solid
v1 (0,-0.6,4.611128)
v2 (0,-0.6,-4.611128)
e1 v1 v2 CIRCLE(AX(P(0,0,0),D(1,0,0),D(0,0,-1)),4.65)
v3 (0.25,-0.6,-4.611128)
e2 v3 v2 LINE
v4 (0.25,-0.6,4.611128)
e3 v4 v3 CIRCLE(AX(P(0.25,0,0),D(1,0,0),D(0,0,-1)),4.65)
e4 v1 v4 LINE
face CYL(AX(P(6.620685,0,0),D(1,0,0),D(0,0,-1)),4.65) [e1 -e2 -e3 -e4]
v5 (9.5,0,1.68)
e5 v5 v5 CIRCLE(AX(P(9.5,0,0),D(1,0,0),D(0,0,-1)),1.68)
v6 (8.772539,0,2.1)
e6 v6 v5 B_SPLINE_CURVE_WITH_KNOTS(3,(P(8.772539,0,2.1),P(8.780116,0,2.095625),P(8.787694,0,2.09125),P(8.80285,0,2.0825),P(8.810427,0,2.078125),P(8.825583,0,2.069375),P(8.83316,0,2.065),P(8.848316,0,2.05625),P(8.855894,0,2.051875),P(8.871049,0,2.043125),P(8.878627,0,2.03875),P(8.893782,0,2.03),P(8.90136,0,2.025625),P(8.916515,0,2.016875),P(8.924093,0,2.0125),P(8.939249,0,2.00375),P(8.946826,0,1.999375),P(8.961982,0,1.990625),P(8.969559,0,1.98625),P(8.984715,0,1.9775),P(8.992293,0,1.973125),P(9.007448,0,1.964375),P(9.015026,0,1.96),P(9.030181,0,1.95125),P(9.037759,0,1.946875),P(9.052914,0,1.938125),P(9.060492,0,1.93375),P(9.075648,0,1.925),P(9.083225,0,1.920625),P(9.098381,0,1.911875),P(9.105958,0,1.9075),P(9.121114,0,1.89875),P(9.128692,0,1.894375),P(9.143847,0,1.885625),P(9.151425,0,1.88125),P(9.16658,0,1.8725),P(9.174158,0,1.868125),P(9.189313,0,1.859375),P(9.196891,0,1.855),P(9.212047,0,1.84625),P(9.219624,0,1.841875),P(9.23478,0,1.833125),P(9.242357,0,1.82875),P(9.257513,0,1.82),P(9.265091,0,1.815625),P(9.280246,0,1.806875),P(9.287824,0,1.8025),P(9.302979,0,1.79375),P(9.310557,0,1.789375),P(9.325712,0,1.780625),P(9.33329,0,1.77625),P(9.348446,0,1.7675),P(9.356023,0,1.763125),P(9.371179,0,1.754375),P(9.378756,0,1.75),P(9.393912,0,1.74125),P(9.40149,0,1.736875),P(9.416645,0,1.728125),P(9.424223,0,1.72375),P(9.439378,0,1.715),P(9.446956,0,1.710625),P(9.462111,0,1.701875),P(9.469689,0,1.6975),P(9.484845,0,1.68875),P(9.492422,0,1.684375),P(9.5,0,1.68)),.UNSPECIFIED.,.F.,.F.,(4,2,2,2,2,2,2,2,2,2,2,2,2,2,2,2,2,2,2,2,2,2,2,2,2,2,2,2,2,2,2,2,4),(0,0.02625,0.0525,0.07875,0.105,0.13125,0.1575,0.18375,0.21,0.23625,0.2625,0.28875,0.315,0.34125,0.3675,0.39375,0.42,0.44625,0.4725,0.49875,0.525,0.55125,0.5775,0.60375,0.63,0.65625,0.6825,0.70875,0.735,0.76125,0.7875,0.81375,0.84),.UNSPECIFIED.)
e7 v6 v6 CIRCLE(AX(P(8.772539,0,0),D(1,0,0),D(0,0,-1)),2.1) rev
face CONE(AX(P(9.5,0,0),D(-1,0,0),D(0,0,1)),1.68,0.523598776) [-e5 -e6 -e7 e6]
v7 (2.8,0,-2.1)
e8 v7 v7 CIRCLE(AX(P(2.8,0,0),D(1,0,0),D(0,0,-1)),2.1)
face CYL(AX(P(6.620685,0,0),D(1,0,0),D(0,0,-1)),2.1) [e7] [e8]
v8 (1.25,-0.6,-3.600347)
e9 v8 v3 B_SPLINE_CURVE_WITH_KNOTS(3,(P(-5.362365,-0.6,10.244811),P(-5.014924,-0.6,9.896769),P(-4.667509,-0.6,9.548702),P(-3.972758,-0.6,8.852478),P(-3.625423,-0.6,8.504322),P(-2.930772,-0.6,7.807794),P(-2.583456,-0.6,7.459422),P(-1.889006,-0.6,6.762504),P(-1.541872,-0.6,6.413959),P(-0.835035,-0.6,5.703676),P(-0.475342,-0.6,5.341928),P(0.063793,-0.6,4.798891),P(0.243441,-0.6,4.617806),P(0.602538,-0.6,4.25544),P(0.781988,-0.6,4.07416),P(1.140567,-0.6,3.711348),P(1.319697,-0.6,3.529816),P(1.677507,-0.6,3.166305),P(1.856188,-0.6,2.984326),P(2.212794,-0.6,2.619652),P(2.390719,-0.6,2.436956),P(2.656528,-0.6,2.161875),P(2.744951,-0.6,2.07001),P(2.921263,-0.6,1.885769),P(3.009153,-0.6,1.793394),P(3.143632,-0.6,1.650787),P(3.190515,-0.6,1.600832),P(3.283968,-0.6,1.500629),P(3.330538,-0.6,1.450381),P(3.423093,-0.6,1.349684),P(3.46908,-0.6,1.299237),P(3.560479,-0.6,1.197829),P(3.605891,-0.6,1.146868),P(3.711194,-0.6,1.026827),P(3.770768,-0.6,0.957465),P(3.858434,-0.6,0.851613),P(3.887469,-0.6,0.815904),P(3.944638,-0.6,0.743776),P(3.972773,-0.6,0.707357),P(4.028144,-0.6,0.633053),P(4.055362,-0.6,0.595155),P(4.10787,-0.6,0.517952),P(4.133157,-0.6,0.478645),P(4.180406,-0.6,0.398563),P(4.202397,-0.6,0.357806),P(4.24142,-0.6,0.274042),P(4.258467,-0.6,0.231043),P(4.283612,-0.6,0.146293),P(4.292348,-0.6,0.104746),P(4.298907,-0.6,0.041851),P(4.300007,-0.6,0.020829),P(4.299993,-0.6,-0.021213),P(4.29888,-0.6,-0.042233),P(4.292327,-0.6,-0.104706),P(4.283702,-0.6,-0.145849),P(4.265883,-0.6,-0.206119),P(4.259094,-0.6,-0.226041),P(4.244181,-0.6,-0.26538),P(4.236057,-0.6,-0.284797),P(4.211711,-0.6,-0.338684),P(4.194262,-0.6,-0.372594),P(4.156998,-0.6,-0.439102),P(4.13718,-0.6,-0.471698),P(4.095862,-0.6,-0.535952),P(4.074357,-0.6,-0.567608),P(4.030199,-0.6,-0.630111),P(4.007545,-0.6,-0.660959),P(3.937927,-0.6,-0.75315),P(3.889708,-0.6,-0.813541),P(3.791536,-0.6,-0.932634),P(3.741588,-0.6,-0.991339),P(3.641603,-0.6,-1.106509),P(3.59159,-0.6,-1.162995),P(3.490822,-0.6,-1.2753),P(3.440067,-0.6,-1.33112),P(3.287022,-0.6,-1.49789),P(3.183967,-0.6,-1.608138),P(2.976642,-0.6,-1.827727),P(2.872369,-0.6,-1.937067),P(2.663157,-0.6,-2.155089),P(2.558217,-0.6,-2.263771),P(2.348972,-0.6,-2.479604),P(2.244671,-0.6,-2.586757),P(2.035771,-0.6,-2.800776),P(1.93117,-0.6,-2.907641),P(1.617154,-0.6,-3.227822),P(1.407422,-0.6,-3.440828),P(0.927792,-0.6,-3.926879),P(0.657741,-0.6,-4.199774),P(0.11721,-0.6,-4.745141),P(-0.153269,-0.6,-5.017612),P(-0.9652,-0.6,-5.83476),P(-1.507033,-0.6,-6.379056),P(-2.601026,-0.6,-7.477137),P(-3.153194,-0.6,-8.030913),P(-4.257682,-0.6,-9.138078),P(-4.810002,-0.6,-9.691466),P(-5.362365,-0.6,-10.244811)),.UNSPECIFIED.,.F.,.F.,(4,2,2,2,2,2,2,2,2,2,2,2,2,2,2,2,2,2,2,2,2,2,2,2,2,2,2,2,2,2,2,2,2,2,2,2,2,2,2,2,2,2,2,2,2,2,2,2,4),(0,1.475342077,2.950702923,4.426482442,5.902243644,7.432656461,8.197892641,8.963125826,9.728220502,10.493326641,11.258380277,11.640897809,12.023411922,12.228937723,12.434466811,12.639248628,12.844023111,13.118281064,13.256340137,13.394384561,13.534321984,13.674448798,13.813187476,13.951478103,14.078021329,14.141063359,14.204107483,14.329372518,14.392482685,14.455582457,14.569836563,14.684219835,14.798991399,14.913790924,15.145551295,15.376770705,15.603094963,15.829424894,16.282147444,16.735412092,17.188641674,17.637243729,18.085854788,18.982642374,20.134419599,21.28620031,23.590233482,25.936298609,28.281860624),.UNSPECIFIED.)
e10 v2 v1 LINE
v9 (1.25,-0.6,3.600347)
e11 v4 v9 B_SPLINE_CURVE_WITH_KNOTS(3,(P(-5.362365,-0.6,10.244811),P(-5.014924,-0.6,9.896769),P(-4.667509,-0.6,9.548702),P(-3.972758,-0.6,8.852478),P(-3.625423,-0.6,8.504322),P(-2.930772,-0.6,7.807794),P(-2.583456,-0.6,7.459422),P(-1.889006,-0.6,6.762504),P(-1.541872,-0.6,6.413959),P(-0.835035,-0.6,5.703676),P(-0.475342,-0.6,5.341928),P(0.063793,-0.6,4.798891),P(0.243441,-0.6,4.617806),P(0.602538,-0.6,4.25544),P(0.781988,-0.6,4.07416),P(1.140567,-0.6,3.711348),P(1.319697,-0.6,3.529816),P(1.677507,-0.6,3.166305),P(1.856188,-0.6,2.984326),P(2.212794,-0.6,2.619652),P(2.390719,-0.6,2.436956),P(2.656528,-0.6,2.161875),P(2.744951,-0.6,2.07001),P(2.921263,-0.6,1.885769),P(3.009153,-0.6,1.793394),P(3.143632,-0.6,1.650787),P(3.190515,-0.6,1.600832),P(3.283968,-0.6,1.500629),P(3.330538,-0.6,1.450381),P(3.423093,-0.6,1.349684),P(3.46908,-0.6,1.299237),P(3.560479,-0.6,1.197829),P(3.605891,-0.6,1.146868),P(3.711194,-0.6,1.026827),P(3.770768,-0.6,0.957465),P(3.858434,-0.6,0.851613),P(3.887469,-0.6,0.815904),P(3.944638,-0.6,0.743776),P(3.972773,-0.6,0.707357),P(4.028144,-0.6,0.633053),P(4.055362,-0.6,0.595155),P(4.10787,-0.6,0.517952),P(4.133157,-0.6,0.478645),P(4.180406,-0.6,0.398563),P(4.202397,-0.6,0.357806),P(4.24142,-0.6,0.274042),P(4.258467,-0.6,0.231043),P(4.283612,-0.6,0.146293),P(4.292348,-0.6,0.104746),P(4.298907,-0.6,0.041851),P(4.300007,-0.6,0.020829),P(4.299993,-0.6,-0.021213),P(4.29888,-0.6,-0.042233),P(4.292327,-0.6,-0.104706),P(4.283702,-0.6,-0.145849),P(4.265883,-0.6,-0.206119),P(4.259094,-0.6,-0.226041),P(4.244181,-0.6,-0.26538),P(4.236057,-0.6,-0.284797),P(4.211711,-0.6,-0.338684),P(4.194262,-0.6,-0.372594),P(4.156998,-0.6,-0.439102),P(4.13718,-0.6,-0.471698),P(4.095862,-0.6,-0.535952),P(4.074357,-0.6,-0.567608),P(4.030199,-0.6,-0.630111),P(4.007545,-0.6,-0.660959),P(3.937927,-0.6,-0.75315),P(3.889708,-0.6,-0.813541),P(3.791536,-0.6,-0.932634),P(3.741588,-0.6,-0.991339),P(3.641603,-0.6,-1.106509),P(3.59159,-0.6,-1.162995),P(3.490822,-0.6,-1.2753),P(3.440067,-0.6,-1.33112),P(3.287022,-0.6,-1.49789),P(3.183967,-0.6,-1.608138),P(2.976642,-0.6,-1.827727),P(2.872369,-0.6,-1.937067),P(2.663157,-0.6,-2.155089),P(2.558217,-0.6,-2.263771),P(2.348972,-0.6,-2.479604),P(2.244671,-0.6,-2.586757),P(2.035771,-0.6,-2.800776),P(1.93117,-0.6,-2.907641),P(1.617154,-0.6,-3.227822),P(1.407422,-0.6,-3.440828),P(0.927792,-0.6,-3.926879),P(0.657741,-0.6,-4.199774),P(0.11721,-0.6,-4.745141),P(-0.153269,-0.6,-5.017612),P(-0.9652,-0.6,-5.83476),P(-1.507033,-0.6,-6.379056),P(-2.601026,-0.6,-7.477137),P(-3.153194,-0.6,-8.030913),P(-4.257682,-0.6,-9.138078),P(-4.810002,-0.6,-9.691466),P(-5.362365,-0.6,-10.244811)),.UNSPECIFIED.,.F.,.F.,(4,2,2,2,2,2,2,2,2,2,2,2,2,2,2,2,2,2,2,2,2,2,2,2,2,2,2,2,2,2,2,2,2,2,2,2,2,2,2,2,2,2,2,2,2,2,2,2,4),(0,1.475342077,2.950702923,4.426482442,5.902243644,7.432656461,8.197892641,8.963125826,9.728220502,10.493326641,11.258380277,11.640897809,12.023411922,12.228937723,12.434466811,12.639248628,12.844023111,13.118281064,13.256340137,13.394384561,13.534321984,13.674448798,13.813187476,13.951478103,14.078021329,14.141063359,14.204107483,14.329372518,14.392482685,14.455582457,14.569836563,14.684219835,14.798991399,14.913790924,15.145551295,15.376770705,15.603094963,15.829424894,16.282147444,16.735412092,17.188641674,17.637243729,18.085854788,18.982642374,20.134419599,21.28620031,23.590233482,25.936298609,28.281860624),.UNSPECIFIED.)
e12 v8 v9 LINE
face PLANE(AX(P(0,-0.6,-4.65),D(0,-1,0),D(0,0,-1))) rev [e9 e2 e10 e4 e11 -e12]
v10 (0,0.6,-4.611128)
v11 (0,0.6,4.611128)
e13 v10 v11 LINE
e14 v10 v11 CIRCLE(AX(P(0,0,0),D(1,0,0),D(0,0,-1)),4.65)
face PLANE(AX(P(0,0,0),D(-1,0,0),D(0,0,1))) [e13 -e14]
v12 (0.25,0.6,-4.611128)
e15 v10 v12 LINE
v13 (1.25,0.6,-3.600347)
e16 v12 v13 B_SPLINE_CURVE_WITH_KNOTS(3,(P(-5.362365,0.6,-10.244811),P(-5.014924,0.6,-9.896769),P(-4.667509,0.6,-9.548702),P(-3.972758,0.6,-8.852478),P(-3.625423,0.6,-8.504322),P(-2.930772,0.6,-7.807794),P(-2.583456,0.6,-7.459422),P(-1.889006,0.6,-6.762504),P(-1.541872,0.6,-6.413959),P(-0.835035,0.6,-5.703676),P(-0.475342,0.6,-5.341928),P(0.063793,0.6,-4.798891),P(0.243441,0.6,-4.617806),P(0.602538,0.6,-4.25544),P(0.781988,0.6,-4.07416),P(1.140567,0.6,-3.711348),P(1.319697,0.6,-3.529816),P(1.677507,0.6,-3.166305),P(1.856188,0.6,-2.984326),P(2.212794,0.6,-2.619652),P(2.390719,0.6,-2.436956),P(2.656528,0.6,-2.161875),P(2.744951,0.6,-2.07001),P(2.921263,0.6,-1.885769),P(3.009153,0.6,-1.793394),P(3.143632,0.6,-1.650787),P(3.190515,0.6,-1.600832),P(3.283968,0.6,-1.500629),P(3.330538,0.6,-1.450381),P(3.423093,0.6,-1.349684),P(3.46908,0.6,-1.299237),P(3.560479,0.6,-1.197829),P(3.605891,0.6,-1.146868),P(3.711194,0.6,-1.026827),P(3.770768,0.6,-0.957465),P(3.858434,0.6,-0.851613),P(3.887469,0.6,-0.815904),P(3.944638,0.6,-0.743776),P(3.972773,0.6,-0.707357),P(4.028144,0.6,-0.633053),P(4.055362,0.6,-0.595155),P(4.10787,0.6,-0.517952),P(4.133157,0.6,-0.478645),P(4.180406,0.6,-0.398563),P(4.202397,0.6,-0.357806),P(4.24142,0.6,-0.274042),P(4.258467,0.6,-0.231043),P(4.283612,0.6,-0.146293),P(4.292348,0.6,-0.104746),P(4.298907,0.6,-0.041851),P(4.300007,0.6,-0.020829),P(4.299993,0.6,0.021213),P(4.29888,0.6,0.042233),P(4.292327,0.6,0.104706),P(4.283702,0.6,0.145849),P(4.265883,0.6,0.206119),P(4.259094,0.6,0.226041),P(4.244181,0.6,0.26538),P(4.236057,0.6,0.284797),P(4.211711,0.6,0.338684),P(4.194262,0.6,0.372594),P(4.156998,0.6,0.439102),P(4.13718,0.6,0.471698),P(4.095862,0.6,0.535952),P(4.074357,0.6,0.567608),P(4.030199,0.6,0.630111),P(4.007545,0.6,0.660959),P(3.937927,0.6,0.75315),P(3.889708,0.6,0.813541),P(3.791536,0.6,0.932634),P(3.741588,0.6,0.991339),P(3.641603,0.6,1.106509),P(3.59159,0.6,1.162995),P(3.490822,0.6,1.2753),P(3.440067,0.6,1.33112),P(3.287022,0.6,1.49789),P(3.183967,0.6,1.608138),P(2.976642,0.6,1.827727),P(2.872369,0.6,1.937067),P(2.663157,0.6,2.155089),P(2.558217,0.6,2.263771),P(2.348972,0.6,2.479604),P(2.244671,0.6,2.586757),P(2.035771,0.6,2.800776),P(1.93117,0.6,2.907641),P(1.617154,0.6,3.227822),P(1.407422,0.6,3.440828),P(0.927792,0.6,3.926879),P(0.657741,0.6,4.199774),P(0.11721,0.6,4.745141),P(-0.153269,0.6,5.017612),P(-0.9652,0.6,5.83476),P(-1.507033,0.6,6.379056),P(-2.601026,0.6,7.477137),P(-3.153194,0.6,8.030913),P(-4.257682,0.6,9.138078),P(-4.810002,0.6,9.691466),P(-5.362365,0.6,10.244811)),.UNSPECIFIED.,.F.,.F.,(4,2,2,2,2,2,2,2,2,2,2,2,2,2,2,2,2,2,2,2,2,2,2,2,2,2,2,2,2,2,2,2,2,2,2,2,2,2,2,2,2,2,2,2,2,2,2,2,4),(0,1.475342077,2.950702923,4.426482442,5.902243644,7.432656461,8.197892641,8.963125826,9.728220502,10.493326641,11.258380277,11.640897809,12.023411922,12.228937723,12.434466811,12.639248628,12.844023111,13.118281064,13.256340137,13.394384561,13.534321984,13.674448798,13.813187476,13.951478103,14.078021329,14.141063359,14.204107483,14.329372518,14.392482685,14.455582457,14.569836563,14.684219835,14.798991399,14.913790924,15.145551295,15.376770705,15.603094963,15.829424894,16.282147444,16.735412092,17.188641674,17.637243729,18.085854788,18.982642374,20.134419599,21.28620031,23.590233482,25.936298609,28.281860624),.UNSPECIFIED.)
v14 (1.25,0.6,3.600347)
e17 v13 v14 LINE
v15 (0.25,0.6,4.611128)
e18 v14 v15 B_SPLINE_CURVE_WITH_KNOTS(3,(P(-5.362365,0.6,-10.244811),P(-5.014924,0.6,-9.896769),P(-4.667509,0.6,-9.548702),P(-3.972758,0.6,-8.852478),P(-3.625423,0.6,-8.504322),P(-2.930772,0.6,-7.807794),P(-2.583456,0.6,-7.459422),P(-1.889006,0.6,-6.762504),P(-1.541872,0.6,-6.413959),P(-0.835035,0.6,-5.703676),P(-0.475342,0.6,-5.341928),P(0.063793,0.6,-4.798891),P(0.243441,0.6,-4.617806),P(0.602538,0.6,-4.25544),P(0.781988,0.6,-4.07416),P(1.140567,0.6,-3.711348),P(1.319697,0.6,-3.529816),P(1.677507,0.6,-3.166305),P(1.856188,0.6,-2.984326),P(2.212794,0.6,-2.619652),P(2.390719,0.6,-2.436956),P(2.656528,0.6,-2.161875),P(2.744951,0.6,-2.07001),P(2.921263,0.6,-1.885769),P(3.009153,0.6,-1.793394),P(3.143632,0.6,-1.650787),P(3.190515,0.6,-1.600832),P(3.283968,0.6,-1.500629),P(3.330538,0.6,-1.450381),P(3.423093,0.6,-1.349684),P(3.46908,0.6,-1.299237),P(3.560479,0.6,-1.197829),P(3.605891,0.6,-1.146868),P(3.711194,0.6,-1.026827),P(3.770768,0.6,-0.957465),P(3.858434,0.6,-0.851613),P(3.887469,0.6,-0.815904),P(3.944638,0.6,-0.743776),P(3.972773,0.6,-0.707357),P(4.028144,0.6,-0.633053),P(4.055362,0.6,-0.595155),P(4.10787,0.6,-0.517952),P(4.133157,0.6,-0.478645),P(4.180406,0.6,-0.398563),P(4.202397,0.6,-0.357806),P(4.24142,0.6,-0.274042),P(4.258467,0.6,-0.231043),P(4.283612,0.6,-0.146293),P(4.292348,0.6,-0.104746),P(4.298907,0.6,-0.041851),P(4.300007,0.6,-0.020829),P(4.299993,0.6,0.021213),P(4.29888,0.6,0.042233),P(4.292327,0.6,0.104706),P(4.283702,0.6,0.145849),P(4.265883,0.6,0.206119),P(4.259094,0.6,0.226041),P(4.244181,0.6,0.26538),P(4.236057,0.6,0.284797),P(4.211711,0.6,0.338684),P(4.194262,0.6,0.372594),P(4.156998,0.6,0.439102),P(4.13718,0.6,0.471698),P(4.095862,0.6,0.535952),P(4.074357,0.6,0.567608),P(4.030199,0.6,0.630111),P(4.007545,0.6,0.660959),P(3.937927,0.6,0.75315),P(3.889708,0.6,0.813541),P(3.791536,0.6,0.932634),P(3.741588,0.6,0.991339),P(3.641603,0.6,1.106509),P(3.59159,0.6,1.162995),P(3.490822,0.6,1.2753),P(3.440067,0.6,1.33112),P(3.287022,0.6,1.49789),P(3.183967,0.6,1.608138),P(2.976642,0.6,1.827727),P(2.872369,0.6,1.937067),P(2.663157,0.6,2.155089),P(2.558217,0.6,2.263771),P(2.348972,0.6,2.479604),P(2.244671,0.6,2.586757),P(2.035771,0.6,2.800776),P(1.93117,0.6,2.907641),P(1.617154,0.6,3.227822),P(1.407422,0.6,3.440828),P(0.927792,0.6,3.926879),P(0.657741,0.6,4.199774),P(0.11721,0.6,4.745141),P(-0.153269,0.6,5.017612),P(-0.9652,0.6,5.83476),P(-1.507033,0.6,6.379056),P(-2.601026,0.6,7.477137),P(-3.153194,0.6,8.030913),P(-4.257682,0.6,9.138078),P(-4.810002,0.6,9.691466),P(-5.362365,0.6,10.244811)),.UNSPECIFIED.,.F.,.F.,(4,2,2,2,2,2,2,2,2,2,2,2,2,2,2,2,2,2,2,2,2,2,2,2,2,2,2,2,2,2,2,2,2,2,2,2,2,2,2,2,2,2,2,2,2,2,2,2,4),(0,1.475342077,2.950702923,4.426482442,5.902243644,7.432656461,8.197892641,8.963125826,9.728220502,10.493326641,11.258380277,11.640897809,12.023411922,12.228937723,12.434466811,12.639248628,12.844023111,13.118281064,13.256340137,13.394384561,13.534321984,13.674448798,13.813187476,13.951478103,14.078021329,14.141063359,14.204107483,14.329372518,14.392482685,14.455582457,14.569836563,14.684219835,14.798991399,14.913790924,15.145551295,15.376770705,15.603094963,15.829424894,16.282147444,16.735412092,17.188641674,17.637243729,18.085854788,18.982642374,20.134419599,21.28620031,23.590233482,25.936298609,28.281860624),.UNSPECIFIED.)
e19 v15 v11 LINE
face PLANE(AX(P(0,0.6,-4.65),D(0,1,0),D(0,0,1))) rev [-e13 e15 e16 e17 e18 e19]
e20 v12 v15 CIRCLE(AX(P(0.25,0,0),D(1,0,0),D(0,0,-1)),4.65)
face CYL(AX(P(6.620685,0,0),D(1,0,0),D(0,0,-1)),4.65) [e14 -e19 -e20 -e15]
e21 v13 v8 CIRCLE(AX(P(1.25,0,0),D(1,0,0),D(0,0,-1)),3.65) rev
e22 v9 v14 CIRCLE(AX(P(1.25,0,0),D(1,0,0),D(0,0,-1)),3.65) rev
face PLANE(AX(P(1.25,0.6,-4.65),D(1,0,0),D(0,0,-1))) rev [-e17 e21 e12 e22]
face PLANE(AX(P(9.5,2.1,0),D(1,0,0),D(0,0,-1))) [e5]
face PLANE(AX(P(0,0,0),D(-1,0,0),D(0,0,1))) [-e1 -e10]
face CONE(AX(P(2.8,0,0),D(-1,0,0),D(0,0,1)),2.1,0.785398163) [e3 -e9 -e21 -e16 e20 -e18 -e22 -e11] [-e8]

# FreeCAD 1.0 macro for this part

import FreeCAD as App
import Part
import Sketcher

V = App.Vector
Q = App.Units.Quantity


def edges_at(feature, points):
    """Names of the edges that pass closest to the given points."""
    edges = feature.Shape.Edges
    near = lambda p: min(range(len(edges)), key=lambda i: edges[i].distToShape(Part.Vertex(*p))[0])
    return sorted({f"Edge{near(p) + 1}" for p in points})

doc = App.newDocument("Part")
params = doc.addObject("Spreadsheet::Sheet", "Params")
for row, (alias, value) in enumerate([
    ("sketch1_width", "9.5 mm"),
    ("sketch1_width2", "6.7 mm"),
    ("sketch1_height", "2.1 mm"),
    ("sketch1_width3", "0.25 mm"),
    ("revolution_angle", "360 deg"),
    ("sketch2_height", "1.2 mm"),
    ("sketch2_width", "1.25 mm"),
    ("chamfer_size", "0.42 mm"),
    ("chamfer_size2", "0.727461 mm"),
], start=1):
    params.set(f"A{row}", alias)
    params.set(f"B{row}", "=" + value)
    params.setAlias(f"B{row}", alias)

body = doc.addObject("PartDesign::Body", "Body")

# Sketch on XY plane
sketch1 = doc.addObject("Sketcher::SketchObject", "Sketch")
body.addObject(sketch1)
sketch1.AttachmentSupport = (doc.XY_Plane, [""])
sketch1.MapMode = "FlatFace"
sketch1.addGeometry(Part.LineSegment(V(0.25, 4.65, 0), V(0, 4.65, 0)), False)
sketch1.addGeometry(Part.LineSegment(V(0, 4.65, 0), V(0, 0, 0)), False)
sketch1.addGeometry(Part.LineSegment(V(0, 0, 0), V(9.5, 0, 0)), False)
sketch1.addGeometry(Part.LineSegment(V(9.5, 0, 0), V(9.5, 2.1, 0)), False)
sketch1.addGeometry(Part.LineSegment(V(9.5, 2.1, 0), V(2.8, 2.1, 0)), False)
sketch1.addGeometry(Part.LineSegment(V(2.8, 2.1, 0), V(0.25, 4.65, 0)), False)
sketch1.addConstraint(Sketcher.Constraint("Coincident", 0, 2, 1, 1))
sketch1.addConstraint(Sketcher.Constraint("Coincident", 1, 2, 2, 1))
sketch1.addConstraint(Sketcher.Constraint("Coincident", 2, 2, 3, 1))
sketch1.addConstraint(Sketcher.Constraint("Coincident", 3, 2, 4, 1))
sketch1.addConstraint(Sketcher.Constraint("Coincident", 4, 2, 5, 1))
sketch1.addConstraint(Sketcher.Constraint("Coincident", 5, 2, 0, 1))
sketch1.addConstraint(Sketcher.Constraint("Horizontal", 0))
sketch1.addConstraint(Sketcher.Constraint("Vertical", 1))
sketch1.addConstraint(Sketcher.Constraint("Horizontal", 2))
sketch1.addConstraint(Sketcher.Constraint("Vertical", 3))
sketch1.addConstraint(Sketcher.Constraint("Horizontal", 4))
sketch1.addConstraint(Sketcher.Constraint("Coincident", 1, 2, -1, 1))
sketch1.addConstraint(Sketcher.Constraint("Angle", 5, Q("135 deg")))
sketch1.addConstraint(Sketcher.Constraint("DistanceX", 2, 1, 2, 2, Q("9.5 mm")))
sketch1.addConstraint(Sketcher.Constraint("DistanceX", 4, 2, 4, 1, Q("6.7 mm")))
sketch1.addConstraint(Sketcher.Constraint("DistanceY", 3, 1, 3, 2, Q("2.1 mm")))
sketch1.addConstraint(Sketcher.Constraint("DistanceX", 0, 2, 0, 1, Q("0.25 mm")))
sketch1.setExpression("Constraints[13]", "Params.sketch1_width")
sketch1.setExpression("Constraints[14]", "Params.sketch1_width2")
sketch1.setExpression("Constraints[15]", "Params.sketch1_height")
sketch1.setExpression("Constraints[16]", "Params.sketch1_width3")
revolution = doc.addObject("PartDesign::Revolution", "Revolution")
body.addObject(revolution)
revolution.Profile = sketch1
revolution.ReferenceAxis = (sketch1, ["H_Axis"])
revolution.setExpression("Angle", "Params.revolution_angle")

# Sketch on XY plane
sketch2 = doc.addObject("Sketcher::SketchObject", "Sketch001")
body.addObject(sketch2)
sketch2.AttachmentSupport = (doc.XY_Plane, [""])
sketch2.MapMode = "FlatFace"
sketch2.addGeometry(Part.LineSegment(V(0, 0.6, 0), V(0, -0.6, 0)), False)
sketch2.addGeometry(Part.LineSegment(V(0, -0.6, 0), V(1.25, -0.6, 0)), False)
sketch2.addGeometry(Part.LineSegment(V(1.25, -0.6, 0), V(1.25, 0.6, 0)), False)
sketch2.addGeometry(Part.LineSegment(V(1.25, 0.6, 0), V(0, 0.6, 0)), False)
sketch2.addConstraint(Sketcher.Constraint("Coincident", 0, 2, 1, 1))
sketch2.addConstraint(Sketcher.Constraint("Coincident", 1, 2, 2, 1))
sketch2.addConstraint(Sketcher.Constraint("Coincident", 2, 2, 3, 1))
sketch2.addConstraint(Sketcher.Constraint("Coincident", 3, 2, 0, 1))
sketch2.addConstraint(Sketcher.Constraint("Vertical", 0))
sketch2.addConstraint(Sketcher.Constraint("Horizontal", 1))
sketch2.addConstraint(Sketcher.Constraint("Vertical", 2))
sketch2.addConstraint(Sketcher.Constraint("Horizontal", 3))
sketch2.addConstraint(Sketcher.Constraint("Symmetric", 0, 2, 3, 2, -1, 1))
sketch2.addConstraint(Sketcher.Constraint("DistanceY", 0, 2, 0, 1, Q("1.2 mm")))
sketch2.addConstraint(Sketcher.Constraint("DistanceX", 1, 1, 1, 2, Q("1.25 mm")))
sketch2.setExpression("Constraints[9]", "Params.sketch2_height")
sketch2.setExpression("Constraints[10]", "Params.sketch2_width")
pocket1 = doc.addObject("PartDesign::Pocket", "Pocket")
body.addObject(pocket1)
pocket1.Profile = sketch2
pocket1.Type = "ThroughAll"
pocket1.Midplane = True
doc.recompute()

chamfer = doc.addObject("PartDesign::Chamfer", "Chamfer")
body.addObject(chamfer)
chamfer.Base = (pocket1, edges_at(pocket1, [(9.5, 0, 2.1)]))
chamfer.ChamferType = "Two distances"
chamfer.setExpression("Size", "Params.chamfer_size")
chamfer.setExpression("Size2", "Params.chamfer_size2")
chamfer.FlipDirection = True

doc.recompute()
